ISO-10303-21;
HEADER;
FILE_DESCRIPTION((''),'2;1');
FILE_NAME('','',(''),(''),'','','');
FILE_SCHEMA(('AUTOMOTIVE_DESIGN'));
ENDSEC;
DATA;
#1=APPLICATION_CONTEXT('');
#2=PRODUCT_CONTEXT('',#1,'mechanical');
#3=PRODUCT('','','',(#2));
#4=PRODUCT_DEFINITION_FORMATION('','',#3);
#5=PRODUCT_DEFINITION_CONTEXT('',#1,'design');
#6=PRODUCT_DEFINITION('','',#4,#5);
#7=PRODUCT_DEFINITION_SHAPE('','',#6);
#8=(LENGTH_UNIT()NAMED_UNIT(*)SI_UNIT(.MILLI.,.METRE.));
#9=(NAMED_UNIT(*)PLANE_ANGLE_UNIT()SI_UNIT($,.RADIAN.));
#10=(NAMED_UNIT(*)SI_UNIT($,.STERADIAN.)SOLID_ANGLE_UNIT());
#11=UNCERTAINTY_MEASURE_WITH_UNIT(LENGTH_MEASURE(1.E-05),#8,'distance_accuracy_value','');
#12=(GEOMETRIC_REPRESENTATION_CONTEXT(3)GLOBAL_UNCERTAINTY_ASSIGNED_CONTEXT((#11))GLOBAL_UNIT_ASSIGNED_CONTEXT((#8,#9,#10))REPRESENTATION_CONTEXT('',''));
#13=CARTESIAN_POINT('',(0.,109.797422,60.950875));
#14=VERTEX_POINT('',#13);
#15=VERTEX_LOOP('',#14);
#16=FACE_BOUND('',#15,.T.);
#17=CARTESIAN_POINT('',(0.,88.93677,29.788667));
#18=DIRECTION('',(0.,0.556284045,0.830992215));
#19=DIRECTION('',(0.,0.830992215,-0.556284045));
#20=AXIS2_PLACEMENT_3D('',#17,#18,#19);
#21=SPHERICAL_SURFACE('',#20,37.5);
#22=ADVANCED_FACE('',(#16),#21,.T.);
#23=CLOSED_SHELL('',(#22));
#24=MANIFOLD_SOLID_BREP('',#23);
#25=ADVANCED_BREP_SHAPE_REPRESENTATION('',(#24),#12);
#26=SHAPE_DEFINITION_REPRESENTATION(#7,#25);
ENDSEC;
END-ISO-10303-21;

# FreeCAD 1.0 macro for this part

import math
import FreeCAD as App
import Part
import Sketcher
from FreeCAD import Vector
Q = App.Units.Quantity

doc = App.newDocument("Part")
body = doc.addObject("PartDesign::Body", "Body")

# Sketch on YZ plane
sketch1 = doc.addObject("Sketcher::SketchObject", "Sketch")
body.addObject(sketch1)
sketch1.AttachmentSupport = (doc.YZ_Plane, [""])
sketch1.MapMode = "FlatFace"
sketch1.addGeometry([
    Part.LineSegment(Vector(110, 61, 0), Vector(68, -1, 0)),
    Part.ArcOfCircle(Part.Circle(Vector(89, 30, 0), Vector(0, 0, 1), 38), math.radians(-124), math.radians(56)),
], False)
sketch1.addGeometry(Part.LineSegment(Vector(110, 61, 0), Vector(68, -1, 0)), True)  # axis
sketch1.addConstraint([
    Sketcher.Constraint("Coincident", 0, 1, 1, 2),
    Sketcher.Constraint("Coincident", 1, 1, 0, 2),
    Sketcher.Constraint("Coincident", 2, 1, 0, 1),
    Sketcher.Constraint("Coincident", 2, 2, 1, 1),
    Sketcher.Constraint("Radius", 1, Q("37.5 mm")),
    Sketcher.Constraint("DistanceX", -1, 1, 1, 3, Q("88.93677 mm")),
    Sketcher.Constraint("DistanceX", -1, 1, 0, 1, Q("109.797422 mm")),
    Sketcher.Constraint("DistanceX", -1, 1, 1, 1, Q("68.076118 mm")),
    Sketcher.Constraint("DistanceY", 1, 1, -1, 1, Q("1.373541 mm")),
])
revolution = doc.addObject("PartDesign::Revolution", "Revolution")
body.addObject(revolution)
revolution.Profile = sketch1
revolution.ReferenceAxis = (sketch1, ["Axis0"])
revolution.Angle = 360

doc.recompute()
